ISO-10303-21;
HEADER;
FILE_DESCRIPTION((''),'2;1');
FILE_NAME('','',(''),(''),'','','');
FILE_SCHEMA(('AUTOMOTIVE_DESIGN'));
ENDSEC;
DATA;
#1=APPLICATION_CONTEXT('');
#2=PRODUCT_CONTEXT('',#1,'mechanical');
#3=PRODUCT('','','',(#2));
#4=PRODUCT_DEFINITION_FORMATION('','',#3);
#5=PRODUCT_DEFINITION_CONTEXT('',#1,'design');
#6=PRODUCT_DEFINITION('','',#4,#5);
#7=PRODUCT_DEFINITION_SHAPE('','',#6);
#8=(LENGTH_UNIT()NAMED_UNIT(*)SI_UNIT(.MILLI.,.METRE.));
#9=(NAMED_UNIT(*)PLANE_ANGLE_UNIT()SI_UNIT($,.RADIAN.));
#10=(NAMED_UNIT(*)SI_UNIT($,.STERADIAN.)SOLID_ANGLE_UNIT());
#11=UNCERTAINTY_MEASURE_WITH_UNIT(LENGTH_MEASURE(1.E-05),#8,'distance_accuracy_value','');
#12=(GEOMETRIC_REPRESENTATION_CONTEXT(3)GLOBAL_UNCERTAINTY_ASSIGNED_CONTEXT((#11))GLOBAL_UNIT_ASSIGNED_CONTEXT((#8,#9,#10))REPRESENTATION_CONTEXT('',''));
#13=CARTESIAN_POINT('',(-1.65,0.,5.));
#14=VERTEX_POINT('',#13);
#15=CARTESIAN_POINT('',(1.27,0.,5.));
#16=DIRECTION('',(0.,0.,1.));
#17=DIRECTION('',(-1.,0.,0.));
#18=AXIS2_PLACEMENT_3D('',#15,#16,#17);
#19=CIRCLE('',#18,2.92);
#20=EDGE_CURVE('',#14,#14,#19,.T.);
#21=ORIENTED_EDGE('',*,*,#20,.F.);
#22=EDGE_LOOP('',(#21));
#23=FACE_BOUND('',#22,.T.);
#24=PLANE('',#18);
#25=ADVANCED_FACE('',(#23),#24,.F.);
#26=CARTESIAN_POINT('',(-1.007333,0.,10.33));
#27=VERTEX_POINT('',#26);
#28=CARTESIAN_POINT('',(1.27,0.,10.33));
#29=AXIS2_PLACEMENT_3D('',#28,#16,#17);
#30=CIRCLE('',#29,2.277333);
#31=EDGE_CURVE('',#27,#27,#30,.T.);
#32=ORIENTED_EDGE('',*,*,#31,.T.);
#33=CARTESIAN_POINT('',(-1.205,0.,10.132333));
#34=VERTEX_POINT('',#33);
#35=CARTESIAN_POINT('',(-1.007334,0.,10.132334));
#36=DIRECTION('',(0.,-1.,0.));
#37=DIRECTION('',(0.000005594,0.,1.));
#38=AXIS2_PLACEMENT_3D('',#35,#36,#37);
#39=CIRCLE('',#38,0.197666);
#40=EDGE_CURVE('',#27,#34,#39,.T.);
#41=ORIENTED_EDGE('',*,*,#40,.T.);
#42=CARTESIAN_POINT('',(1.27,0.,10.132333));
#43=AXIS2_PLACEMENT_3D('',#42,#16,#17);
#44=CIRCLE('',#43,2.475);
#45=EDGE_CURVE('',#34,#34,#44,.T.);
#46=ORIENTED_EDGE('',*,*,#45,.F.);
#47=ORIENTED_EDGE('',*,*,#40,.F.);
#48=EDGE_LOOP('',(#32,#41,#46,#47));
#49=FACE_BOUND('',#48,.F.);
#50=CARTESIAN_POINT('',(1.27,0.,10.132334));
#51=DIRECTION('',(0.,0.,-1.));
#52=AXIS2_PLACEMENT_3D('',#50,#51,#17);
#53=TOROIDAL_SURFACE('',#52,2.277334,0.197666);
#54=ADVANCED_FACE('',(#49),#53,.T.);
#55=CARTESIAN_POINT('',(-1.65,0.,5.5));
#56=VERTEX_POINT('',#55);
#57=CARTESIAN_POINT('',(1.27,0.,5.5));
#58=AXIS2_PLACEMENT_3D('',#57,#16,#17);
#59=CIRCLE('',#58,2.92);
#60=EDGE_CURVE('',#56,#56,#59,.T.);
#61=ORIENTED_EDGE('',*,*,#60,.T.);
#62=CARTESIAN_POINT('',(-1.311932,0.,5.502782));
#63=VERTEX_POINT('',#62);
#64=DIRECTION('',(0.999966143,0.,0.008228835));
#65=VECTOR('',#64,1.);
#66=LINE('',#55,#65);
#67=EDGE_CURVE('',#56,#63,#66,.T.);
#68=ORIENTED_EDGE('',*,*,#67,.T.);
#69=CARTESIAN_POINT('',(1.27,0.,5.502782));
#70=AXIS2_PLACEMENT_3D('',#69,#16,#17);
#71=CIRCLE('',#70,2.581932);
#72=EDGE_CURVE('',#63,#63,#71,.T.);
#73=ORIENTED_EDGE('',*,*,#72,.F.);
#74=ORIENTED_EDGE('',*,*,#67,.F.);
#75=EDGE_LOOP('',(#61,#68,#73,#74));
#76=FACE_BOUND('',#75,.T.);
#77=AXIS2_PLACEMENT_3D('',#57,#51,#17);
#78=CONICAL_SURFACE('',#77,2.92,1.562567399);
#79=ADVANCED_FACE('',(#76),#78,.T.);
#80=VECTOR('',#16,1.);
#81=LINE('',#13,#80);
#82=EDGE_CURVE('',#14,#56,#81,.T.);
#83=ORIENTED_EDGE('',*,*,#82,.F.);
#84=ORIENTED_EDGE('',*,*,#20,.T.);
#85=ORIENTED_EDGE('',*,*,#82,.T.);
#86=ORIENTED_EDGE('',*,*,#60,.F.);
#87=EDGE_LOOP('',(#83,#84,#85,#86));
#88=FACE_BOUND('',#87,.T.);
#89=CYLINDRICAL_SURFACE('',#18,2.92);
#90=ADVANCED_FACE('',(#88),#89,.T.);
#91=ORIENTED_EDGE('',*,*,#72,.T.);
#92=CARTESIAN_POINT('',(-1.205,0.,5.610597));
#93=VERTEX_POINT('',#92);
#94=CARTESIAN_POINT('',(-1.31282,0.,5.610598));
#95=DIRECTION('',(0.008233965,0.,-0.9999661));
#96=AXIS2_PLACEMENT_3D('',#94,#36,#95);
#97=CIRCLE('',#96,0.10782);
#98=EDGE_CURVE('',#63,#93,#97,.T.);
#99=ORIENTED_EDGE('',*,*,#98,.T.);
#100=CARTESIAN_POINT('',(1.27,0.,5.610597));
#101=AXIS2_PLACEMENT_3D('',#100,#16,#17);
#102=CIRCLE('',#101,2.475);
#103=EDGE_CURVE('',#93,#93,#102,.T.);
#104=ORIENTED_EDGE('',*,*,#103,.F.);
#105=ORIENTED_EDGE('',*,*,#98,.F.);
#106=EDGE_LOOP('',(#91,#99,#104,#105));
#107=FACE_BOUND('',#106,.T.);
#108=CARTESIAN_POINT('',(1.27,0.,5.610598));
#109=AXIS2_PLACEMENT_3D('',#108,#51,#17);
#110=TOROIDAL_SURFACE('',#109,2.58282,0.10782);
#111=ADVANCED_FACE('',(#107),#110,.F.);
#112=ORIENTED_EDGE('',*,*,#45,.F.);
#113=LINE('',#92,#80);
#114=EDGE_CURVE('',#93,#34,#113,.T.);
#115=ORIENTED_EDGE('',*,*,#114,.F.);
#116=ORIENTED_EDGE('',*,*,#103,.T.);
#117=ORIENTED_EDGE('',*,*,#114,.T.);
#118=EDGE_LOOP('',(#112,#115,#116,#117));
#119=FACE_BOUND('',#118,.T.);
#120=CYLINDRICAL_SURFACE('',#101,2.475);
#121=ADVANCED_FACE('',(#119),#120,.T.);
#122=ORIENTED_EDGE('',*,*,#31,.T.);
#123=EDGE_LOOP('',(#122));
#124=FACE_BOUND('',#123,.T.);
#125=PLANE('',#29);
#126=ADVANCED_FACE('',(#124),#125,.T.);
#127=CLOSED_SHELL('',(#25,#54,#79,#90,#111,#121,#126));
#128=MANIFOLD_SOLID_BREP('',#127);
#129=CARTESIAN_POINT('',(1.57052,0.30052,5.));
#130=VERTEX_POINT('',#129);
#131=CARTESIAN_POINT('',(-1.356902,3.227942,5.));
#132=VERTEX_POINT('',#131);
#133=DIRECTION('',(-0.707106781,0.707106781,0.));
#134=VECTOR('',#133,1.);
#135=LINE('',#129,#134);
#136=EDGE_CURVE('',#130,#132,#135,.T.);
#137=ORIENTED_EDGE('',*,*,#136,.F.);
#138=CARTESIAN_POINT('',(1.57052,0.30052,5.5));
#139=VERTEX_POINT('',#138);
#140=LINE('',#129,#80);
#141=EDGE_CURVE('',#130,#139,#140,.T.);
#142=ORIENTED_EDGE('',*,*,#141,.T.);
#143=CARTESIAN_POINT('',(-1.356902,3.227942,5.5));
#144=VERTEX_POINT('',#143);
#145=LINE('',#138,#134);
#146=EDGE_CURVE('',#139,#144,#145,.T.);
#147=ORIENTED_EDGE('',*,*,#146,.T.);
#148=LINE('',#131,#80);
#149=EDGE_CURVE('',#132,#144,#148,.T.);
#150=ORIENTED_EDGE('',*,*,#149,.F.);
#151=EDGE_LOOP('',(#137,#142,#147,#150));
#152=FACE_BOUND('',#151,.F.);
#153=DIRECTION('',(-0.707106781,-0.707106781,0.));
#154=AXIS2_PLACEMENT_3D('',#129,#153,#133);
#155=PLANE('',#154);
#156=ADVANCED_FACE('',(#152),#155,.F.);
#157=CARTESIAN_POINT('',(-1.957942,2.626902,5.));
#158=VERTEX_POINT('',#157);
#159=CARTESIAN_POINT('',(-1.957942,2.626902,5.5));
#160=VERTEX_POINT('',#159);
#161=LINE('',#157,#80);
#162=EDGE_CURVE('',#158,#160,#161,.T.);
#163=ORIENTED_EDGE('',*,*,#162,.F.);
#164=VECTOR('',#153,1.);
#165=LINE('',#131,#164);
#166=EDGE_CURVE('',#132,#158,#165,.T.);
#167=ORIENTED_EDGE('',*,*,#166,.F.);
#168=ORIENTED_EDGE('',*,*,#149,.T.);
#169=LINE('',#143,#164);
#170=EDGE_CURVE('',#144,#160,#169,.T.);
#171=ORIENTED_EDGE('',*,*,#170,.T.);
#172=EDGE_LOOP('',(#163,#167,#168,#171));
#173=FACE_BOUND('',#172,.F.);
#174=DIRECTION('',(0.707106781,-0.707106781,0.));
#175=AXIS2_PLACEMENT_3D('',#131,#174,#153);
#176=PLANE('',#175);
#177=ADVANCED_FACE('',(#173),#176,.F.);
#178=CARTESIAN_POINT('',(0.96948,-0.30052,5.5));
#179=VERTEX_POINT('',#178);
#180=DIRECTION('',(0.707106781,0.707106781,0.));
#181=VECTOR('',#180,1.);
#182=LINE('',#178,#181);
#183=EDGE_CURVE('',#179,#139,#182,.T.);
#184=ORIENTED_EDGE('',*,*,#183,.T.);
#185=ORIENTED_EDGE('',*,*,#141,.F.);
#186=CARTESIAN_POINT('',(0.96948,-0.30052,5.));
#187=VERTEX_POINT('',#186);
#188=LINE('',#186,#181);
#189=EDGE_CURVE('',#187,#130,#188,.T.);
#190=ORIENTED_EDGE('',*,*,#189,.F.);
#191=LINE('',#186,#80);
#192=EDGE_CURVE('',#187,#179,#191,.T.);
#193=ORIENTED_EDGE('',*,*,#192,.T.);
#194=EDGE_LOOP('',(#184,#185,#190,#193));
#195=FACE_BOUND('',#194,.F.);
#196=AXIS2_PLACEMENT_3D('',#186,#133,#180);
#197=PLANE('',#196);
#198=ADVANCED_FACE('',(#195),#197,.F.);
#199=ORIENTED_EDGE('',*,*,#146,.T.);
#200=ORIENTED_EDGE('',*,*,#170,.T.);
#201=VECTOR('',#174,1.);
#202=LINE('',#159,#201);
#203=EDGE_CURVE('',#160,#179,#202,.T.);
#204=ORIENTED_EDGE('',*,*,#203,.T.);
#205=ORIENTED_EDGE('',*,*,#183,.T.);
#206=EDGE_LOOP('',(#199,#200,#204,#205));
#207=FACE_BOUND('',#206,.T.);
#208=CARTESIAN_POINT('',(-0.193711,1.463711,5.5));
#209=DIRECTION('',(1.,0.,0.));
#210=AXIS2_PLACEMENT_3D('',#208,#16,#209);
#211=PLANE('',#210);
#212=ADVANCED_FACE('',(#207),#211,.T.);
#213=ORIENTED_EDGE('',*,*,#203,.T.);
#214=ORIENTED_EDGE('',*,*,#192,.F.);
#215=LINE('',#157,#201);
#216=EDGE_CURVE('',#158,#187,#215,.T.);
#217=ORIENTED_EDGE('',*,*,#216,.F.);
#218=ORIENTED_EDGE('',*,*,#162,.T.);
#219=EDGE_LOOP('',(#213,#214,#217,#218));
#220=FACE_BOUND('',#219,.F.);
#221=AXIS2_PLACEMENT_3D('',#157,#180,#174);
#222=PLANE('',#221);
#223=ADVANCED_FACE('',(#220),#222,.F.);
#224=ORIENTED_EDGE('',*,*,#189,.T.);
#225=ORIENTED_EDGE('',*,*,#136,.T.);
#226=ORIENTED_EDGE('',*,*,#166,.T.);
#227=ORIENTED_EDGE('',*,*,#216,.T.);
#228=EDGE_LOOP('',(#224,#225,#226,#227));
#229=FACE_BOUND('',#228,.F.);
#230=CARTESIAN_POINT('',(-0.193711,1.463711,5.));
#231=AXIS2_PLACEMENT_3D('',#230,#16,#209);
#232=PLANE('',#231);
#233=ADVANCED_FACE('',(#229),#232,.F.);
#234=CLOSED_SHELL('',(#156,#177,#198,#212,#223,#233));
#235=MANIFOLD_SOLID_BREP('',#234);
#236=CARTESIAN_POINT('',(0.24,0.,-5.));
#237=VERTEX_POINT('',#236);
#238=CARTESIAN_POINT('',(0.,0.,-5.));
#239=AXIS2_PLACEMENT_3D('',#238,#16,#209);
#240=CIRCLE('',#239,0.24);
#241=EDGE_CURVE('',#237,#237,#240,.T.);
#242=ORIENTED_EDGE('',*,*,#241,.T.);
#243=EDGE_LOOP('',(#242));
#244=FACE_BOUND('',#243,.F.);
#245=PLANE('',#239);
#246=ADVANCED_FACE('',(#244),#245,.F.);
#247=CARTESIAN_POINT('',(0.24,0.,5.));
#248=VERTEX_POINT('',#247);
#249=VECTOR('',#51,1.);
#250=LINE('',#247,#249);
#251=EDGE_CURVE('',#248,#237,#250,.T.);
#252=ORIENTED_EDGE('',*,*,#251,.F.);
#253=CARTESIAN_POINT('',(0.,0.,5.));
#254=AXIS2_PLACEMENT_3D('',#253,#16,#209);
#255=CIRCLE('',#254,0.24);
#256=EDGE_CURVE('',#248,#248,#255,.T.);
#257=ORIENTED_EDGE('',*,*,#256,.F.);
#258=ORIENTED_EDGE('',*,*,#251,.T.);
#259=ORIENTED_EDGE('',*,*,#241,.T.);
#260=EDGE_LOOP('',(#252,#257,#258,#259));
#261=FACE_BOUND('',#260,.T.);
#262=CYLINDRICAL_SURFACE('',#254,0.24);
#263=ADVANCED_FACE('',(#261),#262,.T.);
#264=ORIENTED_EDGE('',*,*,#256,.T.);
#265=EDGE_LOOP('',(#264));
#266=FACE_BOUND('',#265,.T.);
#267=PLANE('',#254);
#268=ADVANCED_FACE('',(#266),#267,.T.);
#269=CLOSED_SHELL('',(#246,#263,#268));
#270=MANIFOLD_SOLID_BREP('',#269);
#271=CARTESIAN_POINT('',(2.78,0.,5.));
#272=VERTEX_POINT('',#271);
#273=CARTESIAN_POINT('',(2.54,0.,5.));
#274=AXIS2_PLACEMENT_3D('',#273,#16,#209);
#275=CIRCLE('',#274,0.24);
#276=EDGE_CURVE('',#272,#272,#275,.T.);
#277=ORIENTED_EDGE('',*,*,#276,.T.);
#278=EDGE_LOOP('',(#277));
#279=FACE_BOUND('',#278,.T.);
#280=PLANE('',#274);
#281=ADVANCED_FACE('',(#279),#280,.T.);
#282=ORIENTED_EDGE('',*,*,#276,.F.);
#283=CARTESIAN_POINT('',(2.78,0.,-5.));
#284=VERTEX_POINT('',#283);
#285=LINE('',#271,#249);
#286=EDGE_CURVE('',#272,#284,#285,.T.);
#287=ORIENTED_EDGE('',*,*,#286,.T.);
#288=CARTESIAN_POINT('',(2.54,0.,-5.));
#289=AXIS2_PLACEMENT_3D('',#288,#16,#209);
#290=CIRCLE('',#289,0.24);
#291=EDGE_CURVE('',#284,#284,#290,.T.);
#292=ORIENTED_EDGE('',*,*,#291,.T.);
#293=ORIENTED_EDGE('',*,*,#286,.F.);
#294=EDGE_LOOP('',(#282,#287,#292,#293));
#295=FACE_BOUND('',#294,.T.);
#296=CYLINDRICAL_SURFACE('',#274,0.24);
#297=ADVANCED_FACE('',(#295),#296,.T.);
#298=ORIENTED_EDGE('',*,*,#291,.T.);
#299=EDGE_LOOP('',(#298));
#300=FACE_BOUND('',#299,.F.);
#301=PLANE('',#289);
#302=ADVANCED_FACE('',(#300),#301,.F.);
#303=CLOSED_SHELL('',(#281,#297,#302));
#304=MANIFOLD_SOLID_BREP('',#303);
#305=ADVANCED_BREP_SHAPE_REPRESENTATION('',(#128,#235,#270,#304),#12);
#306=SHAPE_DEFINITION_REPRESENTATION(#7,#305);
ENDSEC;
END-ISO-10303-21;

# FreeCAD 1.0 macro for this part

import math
import FreeCAD as App
import Part
import Sketcher

V = App.Vector
Q = App.Units.Quantity


def add_polygon(sketch, points):
    """Adds a closed chain of lines whose ends are joined by coincident constraints."""
    first, n = sketch.GeometryCount, len(points)
    for a, b in zip(points, points[1:] + points[:1]):
        sketch.addGeometry(Part.LineSegment(App.Vector(*a, 0), App.Vector(*b, 0)), False)
    for i in range(n):
        sketch.addConstraint(Sketcher.Constraint("Coincident", first + i, 2, first + (i + 1) % n, 1))

doc = App.newDocument("Part")
params = doc.addObject("Spreadsheet::Sheet", "Params")
for row, (alias, value) in enumerate([
    ("sketch1_diameter", "0.48 mm"),
    ("pad1_length", "10 mm"),
    ("sketch2_diameter", "0.48 mm"),
    ("pad2_length", "10 mm"),
    ("sketch3_height", "0.5 mm"),
    ("sketch3_width", "2.92 mm"),
    ("sketch3_height2", "5.33 mm"),
    ("revolution_angle", "360 deg"),
    ("sketch4_length", "4.14 mm"),
    ("sketch4_length2", "0.849999 mm"),
    ("pad3_length", "0.5 mm"),
], start=1):
    params.set(f"A{row}", alias)
    params.set(f"B{row}", "=" + value)
    params.setAlias(f"B{row}", alias)

body = doc.addObject("PartDesign::Body", "Body")

sketch1 = body.newObject("Sketcher::SketchObject", "Sketch")
sketch1.AttachmentSupport = (doc.getObject("XY_Plane"), [""])
sketch1.MapMode = "FlatFace"
sketch1.AttachmentOffset = App.Placement(V(0, 0, 5), App.Rotation())
sketch1.addGeometry(Part.Circle(V(0, 0, 0), V(0, 0, 1), 0.24), False)
sketch1.addConstraint([
    Sketcher.Constraint("Coincident", 0, 3, -1, 1),
    Sketcher.Constraint("Diameter", 0, 0.48),
])
sketch1.setExpression("Constraints[1]", "Params.sketch1_diameter")
pad1 = body.newObject("PartDesign::Pad", "Pad")
pad1.Profile = sketch1
pad1.setExpression("Length", "Params.pad1_length")
pad1.Reversed = True
body2 = doc.addObject("PartDesign::Body", "Body001")

sketch2 = body2.newObject("Sketcher::SketchObject", "Sketch001")
sketch2.AttachmentSupport = (doc.getObject("XY_Plane001"), [""])
sketch2.MapMode = "FlatFace"
sketch2.AttachmentOffset = App.Placement(V(0, 0, 5), App.Rotation())
sketch2.addGeometry(Part.Circle(V(2.54, 0, 0), V(0, 0, 1), 0.24), False)
sketch2.addConstraint([
    Sketcher.Constraint("PointOnObject", 0, 3, -1),
    Sketcher.Constraint("Diameter", 0, 0.48),
    Sketcher.Constraint("DistanceX", -1, 1, 0, 3, 2.54),
])
sketch2.setExpression("Constraints[1]", "Params.sketch2_diameter")
pad2 = body2.newObject("PartDesign::Pad", "Pad001")
pad2.Profile = sketch2
pad2.setExpression("Length", "Params.pad2_length")
pad2.Reversed = True
body3 = doc.addObject("PartDesign::Body", "Body002")

sketch3 = body3.newObject("Sketcher::SketchObject", "Sketch002")
sketch3.AttachmentSupport = (doc.getObject("XZ_Plane002"), [""])
sketch3.MapMode = "FlatFace"
sketch3.addGeometry([
    Part.LineSegment(V(-1.65, 5, 0), V(1.27, 5, 0)),
    Part.LineSegment(V(1.27, 5, 0), V(1.27, 10.33, 0)),
    Part.LineSegment(V(1.27, 10.33, 0), V(-1.01, 10.33, 0)),
    Part.ArcOfCircle(Part.Circle(V(-1.01, 10.13, 0), V(0, 0, 1), 0.2), math.radians(90), math.radians(180)),
    Part.LineSegment(V(-1.21, 10.13, 0), V(-1.21, 5.61, 0)),
    Part.ArcOfCircle(Part.Circle(V(-1.31, 5.61, 0), V(0, 0, 1), 0.11), math.radians(-90), math.radians(0)),
    Part.LineSegment(V(-1.31, 5.5, 0), V(-1.65, 5.5, 0)),
    Part.LineSegment(V(-1.65, 5.5, 0), V(-1.65, 5, 0)),
], False)
sketch3.addGeometry(Part.LineSegment(V(1.27, 5, 0), V(1.27, 10.33, 0)), True)
sketch3.addConstraint([
    Sketcher.Constraint("Coincident", 0, 2, 1, 1),
    Sketcher.Constraint("Coincident", 1, 2, 2, 1),
    Sketcher.Constraint("Coincident", 2, 2, 3, 1),
    Sketcher.Constraint("Coincident", 3, 2, 4, 1),
    Sketcher.Constraint("Coincident", 4, 2, 5, 2),
    Sketcher.Constraint("Coincident", 5, 1, 6, 1),
    Sketcher.Constraint("Coincident", 6, 2, 7, 1),
    Sketcher.Constraint("Coincident", 7, 2, 0, 1),
    Sketcher.Constraint("Horizontal", 0),
    Sketcher.Constraint("Vertical", 1),
    Sketcher.Constraint("Horizontal", 2),
    Sketcher.Constraint("Vertical", 4),
    Sketcher.Constraint("Vertical", 7),
    Sketcher.Constraint("Vertical", 8),
    Sketcher.Constraint("Coincident", 8, 1, 0, 2),
    Sketcher.Constraint("Horizontal", 5, 3, 4, 2),
    Sketcher.Constraint("Horizontal", 2, 2, 8, 2),
    Sketcher.Constraint("Vertical", 3, 3, 2, 2),
    Sketcher.Constraint("DistanceY", 7, 2, 7, 1, 0.5),
    Sketcher.Constraint("DistanceY", -1, 1, 0, 2, 5.0),
    Sketcher.Constraint("DistanceX", 0, 1, 0, 2, 2.92),
    Sketcher.Constraint("DistanceY", 1, 1, 1, 2, 5.33),
    Sketcher.Constraint("DistanceX", -1, 1, 0, 2, 1.27),
    Sketcher.Constraint("Radius", 5, 0.10782),
    Sketcher.Constraint("DistanceX", 3, 2, -1, 1, 1.205),
    Sketcher.Constraint("Radius", 3, 0.197666),
    Sketcher.Constraint("DistanceY", -1, 1, 5, 3, 5.610598),
    Sketcher.Constraint("Distance", 6, 0.338079),
    Sketcher.Constraint("DistanceY", 4, 2, 4, 1, 4.521736),
])
sketch3.setExpression("Constraints[18]", "Params.sketch3_height")
sketch3.setExpression("Constraints[20]", "Params.sketch3_width")
sketch3.setExpression("Constraints[21]", "Params.sketch3_height2")
revolution = body3.newObject("PartDesign::Revolution", "Revolution")
revolution.Profile = sketch3
revolution.ReferenceAxis = (sketch3, ["Axis0"])
revolution.setExpression("Angle", "Params.revolution_angle")
body4 = doc.addObject("PartDesign::Body", "Body003")

sketch4 = body4.newObject("Sketcher::SketchObject", "Sketch003")
sketch4.AttachmentSupport = (doc.getObject("XY_Plane003"), [""])
sketch4.MapMode = "FlatFace"
sketch4.AttachmentOffset = App.Placement(V(0, 0, 5), App.Rotation())
add_polygon(sketch4, [(1.6, 0.3), (-1.4, 3.2), (-2, 2.6), (1, -0.3)])
sketch4.addConstraint([
    Sketcher.Constraint("Perpendicular", 0, 1),
    Sketcher.Constraint("Perpendicular", 1, 2),
    Sketcher.Constraint("Perpendicular", 2, 3),
    Sketcher.Constraint("Angle", 0, Q("135 deg")),
    Sketcher.Constraint("Distance", 0, 4.14),
    Sketcher.Constraint("Distance", 1, 0.849999),
    Sketcher.Constraint("DistanceY", -1, 1, 1, 2, 2.626902),
    Sketcher.Constraint("DistanceX", -1, 1, 2, 2, 0.96948),
])
sketch4.setExpression("Constraints[8]", "Params.sketch4_length")
sketch4.setExpression("Constraints[9]", "Params.sketch4_length2")
pad3 = body4.newObject("PartDesign::Pad", "Pad002")
pad3.Profile = sketch4
pad3.setExpression("Length", "Params.pad3_length")

doc.recompute()
